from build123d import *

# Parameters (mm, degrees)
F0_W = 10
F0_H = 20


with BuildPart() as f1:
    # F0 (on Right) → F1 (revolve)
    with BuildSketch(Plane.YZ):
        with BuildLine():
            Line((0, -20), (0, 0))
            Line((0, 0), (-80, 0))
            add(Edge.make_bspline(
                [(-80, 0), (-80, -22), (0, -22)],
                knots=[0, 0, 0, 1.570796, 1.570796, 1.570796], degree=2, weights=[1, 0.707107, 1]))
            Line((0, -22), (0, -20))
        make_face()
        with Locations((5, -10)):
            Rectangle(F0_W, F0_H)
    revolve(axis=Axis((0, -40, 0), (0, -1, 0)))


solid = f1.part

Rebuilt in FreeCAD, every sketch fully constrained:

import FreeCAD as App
import Part
import Sketcher
from FreeCAD import Vector

doc = App.newDocument("Part")
body = doc.addObject("PartDesign::Body", "Body")

sketch1 = body.newObject("Sketcher::SketchObject", "Sketch")
sketch1.AttachmentSupport = (doc.getObject("YZ_Plane"), [""])
sketch1.MapMode = "FlatFace"
sketch1.addGeometry(Part.BSplineCurve([Vector(-80, 0, 0), Vector(-80, -22, 0), Vector(0, -22, 0)], [3, 3], [0, 1.570796], False, 2, [1, 0.707107, 1], False), False)
sketch1.addGeometry(Part.LineSegment(Vector(0, -22, 0), Vector(0, -20, 0)), False)
sketch1.addGeometry(Part.LineSegment(Vector(0, -20, 0), Vector(10, -20, 0)), False)
sketch1.addGeometry(Part.LineSegment(Vector(10, -20, 0), Vector(10, 0, 0)), False)
sketch1.addGeometry(Part.LineSegment(Vector(10, 0, 0), Vector(-80, 0, 0)), False)
sketch1.addConstraint(Sketcher.Constraint("Block", 0))
sketch1.addConstraint(Sketcher.Constraint("Coincident", 0, 2, 1, 1))
sketch1.addConstraint(Sketcher.Constraint("Coincident", 1, 2, 2, 1))
sketch1.addConstraint(Sketcher.Constraint("Coincident", 2, 2, 3, 1))
sketch1.addConstraint(Sketcher.Constraint("Coincident", 3, 2, 4, 1))
sketch1.addConstraint(Sketcher.Constraint("Coincident", 4, 2, 0, 1))
sketch1.addConstraint(Sketcher.Constraint("Vertical", 1))
sketch1.addConstraint(Sketcher.Constraint("Horizontal", 2))
sketch1.addConstraint(Sketcher.Constraint("Vertical", 3))
sketch1.addConstraint(Sketcher.Constraint("Horizontal", 4))
sketch1.addConstraint(Sketcher.Constraint("DistanceX", 2, 1, 2, 2, 10.0))
sketch1.addConstraint(Sketcher.Constraint("DistanceY", 1, 1, 1, 2, 2.0))
revolution = body.newObject("PartDesign::Revolution", "Revolution")
revolution.Profile = sketch1
revolution.ReferenceAxis = (sketch1, ["H_Axis"])
revolution.Angle = 360

doc.recompute()
